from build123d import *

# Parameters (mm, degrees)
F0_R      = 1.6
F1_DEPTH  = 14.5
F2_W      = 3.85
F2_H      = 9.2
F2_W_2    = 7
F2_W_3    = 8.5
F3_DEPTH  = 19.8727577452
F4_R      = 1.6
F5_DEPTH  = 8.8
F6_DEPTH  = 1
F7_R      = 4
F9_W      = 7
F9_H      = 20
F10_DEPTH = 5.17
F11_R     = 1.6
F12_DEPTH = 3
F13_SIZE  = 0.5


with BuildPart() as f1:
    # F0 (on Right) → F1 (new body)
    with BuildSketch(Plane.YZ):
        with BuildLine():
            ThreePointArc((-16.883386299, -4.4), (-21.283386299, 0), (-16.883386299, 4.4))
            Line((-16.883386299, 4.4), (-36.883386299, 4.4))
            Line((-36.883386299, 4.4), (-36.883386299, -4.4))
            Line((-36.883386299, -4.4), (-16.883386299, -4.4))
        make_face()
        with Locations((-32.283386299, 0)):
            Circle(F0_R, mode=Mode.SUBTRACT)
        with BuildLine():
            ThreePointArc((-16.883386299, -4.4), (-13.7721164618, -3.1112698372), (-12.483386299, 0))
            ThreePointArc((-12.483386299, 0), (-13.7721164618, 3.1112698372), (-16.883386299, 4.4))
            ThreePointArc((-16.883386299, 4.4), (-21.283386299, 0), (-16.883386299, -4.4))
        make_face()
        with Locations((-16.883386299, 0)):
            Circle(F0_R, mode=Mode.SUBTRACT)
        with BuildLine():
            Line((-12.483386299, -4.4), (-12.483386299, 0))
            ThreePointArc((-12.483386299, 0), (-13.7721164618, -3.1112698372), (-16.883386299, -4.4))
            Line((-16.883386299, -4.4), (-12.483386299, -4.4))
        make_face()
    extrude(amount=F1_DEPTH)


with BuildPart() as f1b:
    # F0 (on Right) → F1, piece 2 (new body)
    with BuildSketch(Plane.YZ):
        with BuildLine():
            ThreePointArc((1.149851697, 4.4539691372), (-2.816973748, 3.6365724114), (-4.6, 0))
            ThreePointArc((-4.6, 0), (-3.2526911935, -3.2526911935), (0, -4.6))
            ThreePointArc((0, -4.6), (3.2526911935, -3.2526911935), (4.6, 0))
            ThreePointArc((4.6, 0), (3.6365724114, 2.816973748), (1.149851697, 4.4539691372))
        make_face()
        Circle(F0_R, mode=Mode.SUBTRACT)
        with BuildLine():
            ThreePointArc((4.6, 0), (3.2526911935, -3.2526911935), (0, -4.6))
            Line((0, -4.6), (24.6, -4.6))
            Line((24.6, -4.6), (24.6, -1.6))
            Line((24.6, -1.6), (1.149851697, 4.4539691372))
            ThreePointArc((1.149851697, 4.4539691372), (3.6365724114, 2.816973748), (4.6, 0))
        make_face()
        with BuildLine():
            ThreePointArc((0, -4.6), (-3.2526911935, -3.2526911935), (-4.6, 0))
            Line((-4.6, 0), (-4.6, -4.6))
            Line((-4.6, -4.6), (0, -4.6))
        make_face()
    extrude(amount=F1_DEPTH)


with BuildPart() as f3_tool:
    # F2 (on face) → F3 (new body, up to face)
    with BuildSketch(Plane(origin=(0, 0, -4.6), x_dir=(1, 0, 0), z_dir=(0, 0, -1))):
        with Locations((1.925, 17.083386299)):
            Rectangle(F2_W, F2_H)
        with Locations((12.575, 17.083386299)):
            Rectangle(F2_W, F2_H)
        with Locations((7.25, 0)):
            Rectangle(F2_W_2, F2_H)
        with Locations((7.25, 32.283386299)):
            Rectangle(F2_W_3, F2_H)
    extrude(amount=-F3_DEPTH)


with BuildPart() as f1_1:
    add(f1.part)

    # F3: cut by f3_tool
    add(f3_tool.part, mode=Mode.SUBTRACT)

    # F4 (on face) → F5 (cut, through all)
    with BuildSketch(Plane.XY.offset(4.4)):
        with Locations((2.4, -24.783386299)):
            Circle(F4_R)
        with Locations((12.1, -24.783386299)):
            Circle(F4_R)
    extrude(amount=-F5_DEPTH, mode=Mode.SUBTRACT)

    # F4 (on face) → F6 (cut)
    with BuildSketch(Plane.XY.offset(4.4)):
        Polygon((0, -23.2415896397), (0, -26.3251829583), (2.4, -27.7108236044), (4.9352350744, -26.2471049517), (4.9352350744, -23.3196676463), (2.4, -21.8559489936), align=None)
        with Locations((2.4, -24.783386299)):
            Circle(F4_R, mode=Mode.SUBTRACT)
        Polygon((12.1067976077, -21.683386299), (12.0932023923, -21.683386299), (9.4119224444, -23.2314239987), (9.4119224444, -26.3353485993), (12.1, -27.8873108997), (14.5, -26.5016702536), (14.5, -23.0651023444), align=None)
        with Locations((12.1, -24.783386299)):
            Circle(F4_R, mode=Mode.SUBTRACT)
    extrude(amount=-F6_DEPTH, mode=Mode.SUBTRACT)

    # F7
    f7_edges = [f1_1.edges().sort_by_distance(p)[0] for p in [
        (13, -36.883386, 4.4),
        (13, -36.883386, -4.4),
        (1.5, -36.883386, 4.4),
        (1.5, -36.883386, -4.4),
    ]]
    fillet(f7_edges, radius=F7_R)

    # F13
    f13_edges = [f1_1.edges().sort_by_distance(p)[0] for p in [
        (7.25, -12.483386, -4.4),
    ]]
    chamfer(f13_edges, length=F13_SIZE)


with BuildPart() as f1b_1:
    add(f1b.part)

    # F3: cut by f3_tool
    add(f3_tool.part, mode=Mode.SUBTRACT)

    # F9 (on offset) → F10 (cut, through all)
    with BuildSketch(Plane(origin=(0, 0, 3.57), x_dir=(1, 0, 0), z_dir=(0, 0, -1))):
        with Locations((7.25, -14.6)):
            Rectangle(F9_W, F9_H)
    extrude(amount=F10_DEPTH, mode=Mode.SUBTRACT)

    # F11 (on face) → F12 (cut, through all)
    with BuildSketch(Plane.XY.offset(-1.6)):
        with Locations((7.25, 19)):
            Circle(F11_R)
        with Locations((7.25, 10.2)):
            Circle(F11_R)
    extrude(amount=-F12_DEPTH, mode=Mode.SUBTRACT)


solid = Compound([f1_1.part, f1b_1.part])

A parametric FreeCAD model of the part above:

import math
import FreeCAD as App
import Part
import Sketcher
from FreeCAD import Vector
Q = App.Units.Quantity


def edges_at(feature, points):
    """Names of the edges that pass closest to the given points."""
    edges = feature.Shape.Edges
    near = lambda p: min(range(len(edges)), key=lambda i: edges[i].distToShape(Part.Vertex(*p))[0])
    return sorted({f"Edge{near(p) + 1}" for p in points})

doc = App.newDocument("Part")
body = doc.addObject("PartDesign::Body", "Body")

# Sketch on YZ plane
sketch1 = body.newObject("Sketcher::SketchObject", "Sketch")
sketch1.AttachmentSupport = (doc.getObject("YZ_Plane"), [""])
sketch1.MapMode = "FlatFace"
sketch1.addGeometry([
    Part.LineSegment(Vector(-36.9, -4.4, 0), Vector(-12.5, -4.4, 0)),  # 0
    Part.LineSegment(Vector(-12.5, -4.4, 0), Vector(-12.5, 0, 0)),  # 1
    Part.ArcOfCircle(Part.Circle(Vector(-16.9, 0, 0), Vector(0, 0, 1), 4.4), math.radians(0), math.radians(90)),  # 2
    Part.LineSegment(Vector(-16.9, 4.4, 0), Vector(-36.9, 4.4, 0)),  # 3
    Part.LineSegment(Vector(-36.9, 4.4, 0), Vector(-36.9, -4.4, 0)),  # 4
    Part.Circle(Vector(-32.3, 0, 0), Vector(0, 0, 1), 1.6),  # 5
    Part.Circle(Vector(-16.9, 0, 0), Vector(0, 0, 1), 1.6),  # 6
], False)
sketch1.addConstraint([
    Sketcher.Constraint("Coincident", 0, 2, 1, 1),
    Sketcher.Constraint("Tangent", 1, 2, 2, 1),
    Sketcher.Constraint("Tangent", 2, 2, 3, 1),
    Sketcher.Constraint("Coincident", 3, 2, 4, 1),
    Sketcher.Constraint("Coincident", 4, 2, 0, 1),
    Sketcher.Constraint("Horizontal", 0),
    Sketcher.Constraint("Vertical", 1),
    Sketcher.Constraint("Horizontal", 3),
    Sketcher.Constraint("Vertical", 4),
    Sketcher.Constraint("Coincident", 6, 3, 2, 3),
    Sketcher.Constraint("Equal", 5, 6),
    Sketcher.Constraint("PointOnObject", 2, 3, -1),
    Sketcher.Constraint("PointOnObject", 5, 3, -1),
    Sketcher.Constraint("Diameter", 5, 3.2),
    Sketcher.Constraint("Radius", 2, 4.4),
    Sketcher.Constraint("DistanceX", 3, 2, 3, 1, 20.0),
    Sketcher.Constraint("DistanceY", 1, 1, 1, 2, 4.4),
    Sketcher.Constraint("DistanceX", 5, 3, 2, 3, 15.4),
    Sketcher.Constraint("DistanceX", 2, 3, -1, 1, 16.883386),
])
pad1 = body.newObject("PartDesign::Pad", "Pad")
pad1.Profile = sketch1
pad1.Length = 14.5
body2 = doc.addObject("PartDesign::Body", "Body001")

# Sketch on YZ plane
sketch2 = body2.newObject("Sketcher::SketchObject", "Sketch001")
sketch2.AttachmentSupport = (doc.getObject("YZ_Plane001"), [""])
sketch2.MapMode = "FlatFace"
sketch2.addGeometry([
    Part.ArcOfCircle(Part.Circle(Vector(0, 0, 0), Vector(0, 0, 1), 4.6), math.radians(76), math.radians(180)),  # 0
    Part.LineSegment(Vector(-4.6, 0, 0), Vector(-4.6, -4.6, 0)),  # 1
    Part.LineSegment(Vector(-4.6, -4.6, 0), Vector(24.6, -4.6, 0)),  # 2
    Part.LineSegment(Vector(24.6, -4.6, 0), Vector(24.6, -1.6, 0)),  # 3
    Part.LineSegment(Vector(24.6, -1.6, 0), Vector(1.1, 4.5, 0)),  # 4
    Part.Circle(Vector(0, 0, 0), Vector(0, 0, 1), 1.6),  # 5
], False)
sketch2.addConstraint([
    Sketcher.Constraint("Tangent", 0, 2, 1, 1),
    Sketcher.Constraint("Coincident", 1, 2, 2, 1),
    Sketcher.Constraint("Coincident", 2, 2, 3, 1),
    Sketcher.Constraint("Coincident", 3, 2, 4, 1),
    Sketcher.Constraint("Tangent", 4, 2, 0, 1),
    Sketcher.Constraint("Vertical", 1),
    Sketcher.Constraint("Horizontal", 2),
    Sketcher.Constraint("Vertical", 3),
    Sketcher.Constraint("Coincident", 0, 3, -1, 1),
    Sketcher.Constraint("Coincident", 5, 3, -1, 1),
    Sketcher.Constraint("Diameter", 5, 3.2),
    Sketcher.Constraint("Radius", 0, 4.6),
    Sketcher.Constraint("DistanceY", 3, 1, 3, 2, 3.0),
    Sketcher.Constraint("DistanceX", 2, 1, 2, 2, 29.2),
    Sketcher.Constraint("DistanceY", 1, 2, 1, 1, 4.6),
])
pad2 = body2.newObject("PartDesign::Pad", "Pad001")
pad2.Profile = sketch2
pad2.Length = 14.5
body3 = doc.addObject("PartDesign::Body", "Body002")
body3.AllowCompound = True

# Sketch on XY plane
sketch3 = body3.newObject("Sketcher::SketchObject", "Sketch002")
sketch3.AttachmentSupport = (doc.getObject("XY_Plane002"), [""])
sketch3.MapMode = "FlatFace"
sketch3.AttachmentOffset = App.Placement(Vector(0, 0, -4.6), App.Rotation())
sketch3.addGeometry([
    Part.LineSegment(Vector(0, -21.7, 0), Vector(0, -12.5, 0)),  # 0
    Part.LineSegment(Vector(0, -12.5, 0), Vector(3.9, -12.5, 0)),  # 1
    Part.LineSegment(Vector(3.9, -12.5, 0), Vector(3.9, -21.7, 0)),  # 2
    Part.LineSegment(Vector(3.9, -21.7, 0), Vector(0, -21.7, 0)),  # 3
    Part.LineSegment(Vector(10.7, -21.7, 0), Vector(10.7, -12.5, 0)),  # 4
    Part.LineSegment(Vector(10.7, -12.5, 0), Vector(14.5, -12.5, 0)),  # 5
    Part.LineSegment(Vector(14.5, -12.5, 0), Vector(14.5, -21.7, 0)),  # 6
    Part.LineSegment(Vector(14.5, -21.7, 0), Vector(10.7, -21.7, 0)),  # 7
    Part.LineSegment(Vector(3.8, -4.6, 0), Vector(3.8, 4.6, 0)),  # 8
    Part.LineSegment(Vector(3.8, 4.6, 0), Vector(10.8, 4.6, 0)),  # 9
    Part.LineSegment(Vector(10.8, 4.6, 0), Vector(10.8, -4.6, 0)),  # 10
    Part.LineSegment(Vector(10.8, -4.6, 0), Vector(3.8, -4.6, 0)),  # 11
    Part.LineSegment(Vector(3, -36.9, 0), Vector(3, -27.7, 0)),  # 12
    Part.LineSegment(Vector(3, -27.7, 0), Vector(11.5, -27.7, 0)),  # 13
    Part.LineSegment(Vector(11.5, -27.7, 0), Vector(11.5, -36.9, 0)),  # 14
    Part.LineSegment(Vector(11.5, -36.9, 0), Vector(3, -36.9, 0)),  # 15
], False)
sketch3.addConstraint([
    Sketcher.Constraint("Coincident", 0, 2, 1, 1),
    Sketcher.Constraint("Coincident", 1, 2, 2, 1),
    Sketcher.Constraint("Coincident", 2, 2, 3, 1),
    Sketcher.Constraint("Coincident", 3, 2, 0, 1),
    Sketcher.Constraint("Coincident", 4, 2, 5, 1),
    Sketcher.Constraint("Coincident", 5, 2, 6, 1),
    Sketcher.Constraint("Coincident", 6, 2, 7, 1),
    Sketcher.Constraint("Coincident", 7, 2, 4, 1),
    Sketcher.Constraint("Coincident", 8, 2, 9, 1),
    Sketcher.Constraint("Coincident", 9, 2, 10, 1),
    Sketcher.Constraint("Coincident", 10, 2, 11, 1),
    Sketcher.Constraint("Coincident", 11, 2, 8, 1),
    Sketcher.Constraint("Coincident", 12, 2, 13, 1),
    Sketcher.Constraint("Coincident", 13, 2, 14, 1),
    Sketcher.Constraint("Coincident", 14, 2, 15, 1),
    Sketcher.Constraint("Coincident", 15, 2, 12, 1),
    Sketcher.Constraint("Vertical", 0),
    Sketcher.Constraint("Horizontal", 1),
    Sketcher.Constraint("Vertical", 2),
    Sketcher.Constraint("Horizontal", 3),
    Sketcher.Constraint("Vertical", 4),
    Sketcher.Constraint("Horizontal", 5),
    Sketcher.Constraint("Vertical", 6),
    Sketcher.Constraint("Horizontal", 7),
    Sketcher.Constraint("Vertical", 8),
    Sketcher.Constraint("Horizontal", 9),
    Sketcher.Constraint("Vertical", 10),
    Sketcher.Constraint("Horizontal", 11),
    Sketcher.Constraint("Vertical", 12),
    Sketcher.Constraint("Horizontal", 13),
    Sketcher.Constraint("Vertical", 14),
    Sketcher.Constraint("Horizontal", 15),
    Sketcher.Constraint("PointOnObject", 0, 2, -2),
    Sketcher.Constraint("Horizontal", 1, 2, 4, 2),
    Sketcher.Constraint("Horizontal", 3, 2, 6, 2),
    Sketcher.Constraint("Equal", 3, 5),
    Sketcher.Constraint("Equal", 6, 8),
    Sketcher.Constraint("Equal", 10, 12),
    Sketcher.Constraint("DistanceX", 9, 1, 9, 2, 7.0),
    Sketcher.Constraint("DistanceX", 13, 1, 13, 2, 8.5),
    Sketcher.Constraint("DistanceY", 0, 1, 0, 2, 9.2),
    Sketcher.Constraint("DistanceX", -1, 1, 12, 2, 3.0),
    Sketcher.Constraint("DistanceY", 12, 2, 2, 2, 6.0),
    Sketcher.Constraint("DistanceX", 13, 2, 6, 2, 3.0),
    Sketcher.Constraint("DistanceX", 1, 1, 1, 2, 3.85),
    Sketcher.Constraint("DistanceY", -1, 1, 8, 2, 4.6),
    Sketcher.Constraint("DistanceX", 8, 2, 1, 2, 0.1),
    Sketcher.Constraint("DistanceY", 0, 2, -1, 1, 12.483386),
])
pad3 = body3.newObject("PartDesign::Pad", "Pad002")
pad3.Profile = sketch3
pad3.Length = 19.872758
doc.recompute()

body4 = doc.addObject("PartDesign::Body", "Body003")
body4.BaseFeature = body3
boolean = body.newObject("PartDesign::Boolean", "Boolean")
boolean.Type = "Cut"
boolean.addObjects([body4])
doc.recompute()

# Sketch on XY plane
sketch4 = body.newObject("Sketcher::SketchObject", "Sketch003")
sketch4.AttachmentSupport = (doc.getObject("XY_Plane"), [""])
sketch4.MapMode = "FlatFace"
sketch4.AttachmentOffset = App.Placement(Vector(0, 0, 4.4), App.Rotation())
sketch4.addGeometry([
    Part.Circle(Vector(2.4, -24.8, 0), Vector(0, 0, 1), 1.6),
    Part.Circle(Vector(12.1, -24.8, 0), Vector(0, 0, 1), 1.6),
], False)
sketch4.addConstraint([
    Sketcher.Constraint("Equal", 0, 1),
    Sketcher.Constraint("Horizontal", 0, 3, 1, 3),
    Sketcher.Constraint("Diameter", 0, 3.2),
    Sketcher.Constraint("DistanceX", -1, 1, 0, 3, 2.4),
    Sketcher.Constraint("DistanceX", -1, 1, 1, 3, 12.1),
    Sketcher.Constraint("DistanceY", 0, 3, -1, 1, 24.783386),
])
pocket1 = body.newObject("PartDesign::Pocket", "Pocket")
pocket1.Profile = sketch4
pocket1.Type = "ThroughAll"

# Sketch on XY plane
sketch5 = body.newObject("Sketcher::SketchObject", "Sketch004")
sketch5.AttachmentSupport = (doc.getObject("XY_Plane"), [""])
sketch5.MapMode = "FlatFace"
sketch5.AttachmentOffset = App.Placement(Vector(0, 0, 4.4), App.Rotation())
sketch5.addGeometry([
    Part.LineSegment(Vector(0, -23.242, 0), Vector(0, -26.325, 0)),  # 0
    Part.LineSegment(Vector(0, -26.325, 0), Vector(2.4, -27.711, 0)),  # 1
    Part.LineSegment(Vector(2.4, -27.711, 0), Vector(4.935, -26.247, 0)),  # 2
    Part.LineSegment(Vector(4.935, -26.247, 0), Vector(4.935, -23.32, 0)),  # 3
    Part.LineSegment(Vector(4.935, -23.32, 0), Vector(2.4, -21.856, 0)),  # 4
    Part.LineSegment(Vector(2.4, -21.856, 0), Vector(0, -23.242, 0)),  # 5
    Part.Circle(Vector(2.4, -24.783, 0), Vector(0, 0, 1), 1.6),  # 6
    Part.LineSegment(Vector(12.107, -21.683, 0), Vector(12.093, -21.683, 0)),  # 7
    Part.LineSegment(Vector(12.093, -21.683, 0), Vector(9.412, -23.231, 0)),  # 8
    Part.LineSegment(Vector(9.412, -23.231, 0), Vector(9.412, -26.335, 0)),  # 9
    Part.LineSegment(Vector(9.412, -26.335, 0), Vector(12.1, -27.887, 0)),  # 10
    Part.LineSegment(Vector(12.1, -27.887, 0), Vector(14.5, -26.502, 0)),  # 11
    Part.LineSegment(Vector(14.5, -26.502, 0), Vector(14.5, -23.065, 0)),  # 12
    Part.LineSegment(Vector(14.5, -23.065, 0), Vector(12.107, -21.683, 0)),  # 13
    Part.Circle(Vector(12.1, -24.783, 0), Vector(0, 0, 1), 1.6),  # 14
], False)
sketch5.addConstraint([
    Sketcher.Constraint("Coincident", 0, 2, 1, 1),
    Sketcher.Constraint("Coincident", 1, 2, 2, 1),
    Sketcher.Constraint("Coincident", 2, 2, 3, 1),
    Sketcher.Constraint("Coincident", 3, 2, 4, 1),
    Sketcher.Constraint("Coincident", 4, 2, 5, 1),
    Sketcher.Constraint("Coincident", 5, 2, 0, 1),
    Sketcher.Constraint("Coincident", 7, 2, 8, 1),
    Sketcher.Constraint("Coincident", 8, 2, 9, 1),
    Sketcher.Constraint("Coincident", 9, 2, 10, 1),
    Sketcher.Constraint("Coincident", 10, 2, 11, 1),
    Sketcher.Constraint("Coincident", 11, 2, 12, 1),
    Sketcher.Constraint("Coincident", 12, 2, 13, 1),
    Sketcher.Constraint("Coincident", 13, 2, 7, 1),
    Sketcher.Constraint("Vertical", 0),
    Sketcher.Constraint("Vertical", 3),
    Sketcher.Constraint("Horizontal", 7),
    Sketcher.Constraint("Vertical", 9),
    Sketcher.Constraint("Vertical", 12),
    Sketcher.Constraint("Equal", 6, 14),
    Sketcher.Constraint("PointOnObject", 0, 2, -2),
    Sketcher.Constraint("Parallel", 1, 4),
    Sketcher.Constraint("Parallel", 2, 5),
    Sketcher.Constraint("Parallel", 5, 8),
    Sketcher.Constraint("Parallel", 4, 10),
    Sketcher.Constraint("Parallel", 8, 11),
    Sketcher.Constraint("Parallel", 10, 13),
    Sketcher.Constraint("Horizontal", 6, 3, 14, 3),
    Sketcher.Constraint("Vertical", 6, 3, 1, 2),
    Sketcher.Constraint("Vertical", 1, 2, 4, 2),
    Sketcher.Constraint("Vertical", 14, 3, 10, 2),
    Sketcher.Constraint("Equal", 2, 4),
    Sketcher.Constraint("Equal", 5, 11),
    Sketcher.Constraint("Diameter", 6, 3.2),
    Sketcher.Constraint("Angle", 1, Q("-30 deg")),
    Sketcher.Constraint("DistanceX", -1, 1, 6, 3, 2.4),
    Sketcher.Constraint("DistanceX", -1, 1, 14, 3, 12.1),
    Sketcher.Constraint("DistanceY", 14, 3, 7, 2, 3.1),
    Sketcher.Constraint("DistanceX", 7, 2, 7, 1, 0.013595),
    Sketcher.Constraint("DistanceY", 0, 2, 0, 1, 3.083593),
    Sketcher.Constraint("DistanceY", 3, 1, 3, 2, 2.927437),
    Sketcher.Constraint("DistanceY", 9, 2, 9, 1, 3.103925),
    Sketcher.Constraint("DistanceY", 12, 1, 12, 2, 3.436568),
    Sketcher.Constraint("DistanceY", 4, 2, -1, 1, 21.855949),
    Sketcher.Constraint("DistanceY", 9, 2, -1, 1, 26.335349),
    Sketcher.Constraint("DistanceY", 10, 2, -1, 1, 27.887311),
])
pocket2 = body.newObject("PartDesign::Pocket", "Pocket001")
pocket2.Profile = sketch5
pocket2.Length = 1
doc.recompute()

fillet = body.newObject("PartDesign::Fillet", "Fillet")
fillet.Base = (pocket2, edges_at(pocket2, [
    (13, -36.883, 4.4),
    (13, -36.883, -4.4),
    (1.5, -36.883, 4.4),
    (1.5, -36.883, -4.4),
]))
fillet.Radius = 4
doc.recompute()

chamfer = body.newObject("PartDesign::Chamfer", "Chamfer")
chamfer.Base = (fillet, edges_at(fillet, [(7.25, -12.483, -4.4)]))
chamfer.Size = 0.5
doc.recompute()

boolean2 = body2.newObject("PartDesign::Boolean", "Boolean001")
boolean2.Type = "Cut"
boolean2.addObjects([body3])

# Sketch on XY plane
sketch6 = body2.newObject("Sketcher::SketchObject", "Sketch005")
sketch6.AttachmentSupport = (doc.getObject("XY_Plane001"), [""])
sketch6.MapMode = "FlatFace"
sketch6.AttachmentOffset = App.Placement(Vector(0, 0, 3.57), App.Rotation())
sketch6.addGeometry([
    Part.LineSegment(Vector(4, 5, 0), Vector(4, 25, 0)),
    Part.LineSegment(Vector(4, 25, 0), Vector(11, 25, 0)),
    Part.LineSegment(Vector(11, 25, 0), Vector(11, 5, 0)),
    Part.LineSegment(Vector(11, 5, 0), Vector(4, 5, 0)),
], False)
sketch6.addConstraint([
    Sketcher.Constraint("Coincident", 0, 2, 1, 1),
    Sketcher.Constraint("Coincident", 1, 2, 2, 1),
    Sketcher.Constraint("Coincident", 2, 2, 3, 1),
    Sketcher.Constraint("Coincident", 3, 2, 0, 1),
    Sketcher.Constraint("Vertical", 0),
    Sketcher.Constraint("Horizontal", 1),
    Sketcher.Constraint("Vertical", 2),
    Sketcher.Constraint("Horizontal", 3),
    Sketcher.Constraint("DistanceX", 1, 1, 1, 2, 7.0),
    Sketcher.Constraint("DistanceY", 0, 1, 0, 2, 20.0),
    Sketcher.Constraint("DistanceY", -1, 1, 0, 2, 24.6),
    Sketcher.Constraint("DistanceX", -1, 1, 0, 2, 3.75),
])
pocket3 = body2.newObject("PartDesign::Pocket", "Pocket002")
pocket3.Profile = sketch6
pocket3.Length = 5.17

# Sketch on XY plane
sketch7 = body2.newObject("Sketcher::SketchObject", "Sketch006")
sketch7.AttachmentSupport = (doc.getObject("XY_Plane001"), [""])
sketch7.MapMode = "FlatFace"
sketch7.AttachmentOffset = App.Placement(Vector(0, 0, -1.6), App.Rotation())
sketch7.addGeometry([
    Part.Circle(Vector(7.2, 19, 0), Vector(0, 0, 1), 1.6),
    Part.Circle(Vector(7.2, 10.2, 0), Vector(0, 0, 1), 1.6),
], False)
sketch7.addConstraint([
    Sketcher.Constraint("Equal", 0, 1),
    Sketcher.Constraint("Vertical", 0, 3, 1, 3),
    Sketcher.Constraint("Diameter", 0, 3.2),
    Sketcher.Constraint("DistanceY", -1, 1, 0, 3, 19.0),
    Sketcher.Constraint("DistanceY", -1, 1, 1, 3, 10.2),
    Sketcher.Constraint("DistanceX", -1, 1, 0, 3, 7.25),
])
pocket4 = body2.newObject("PartDesign::Pocket", "Pocket003")
pocket4.Profile = sketch7
pocket4.Type = "ThroughAll"

doc.recompute()
